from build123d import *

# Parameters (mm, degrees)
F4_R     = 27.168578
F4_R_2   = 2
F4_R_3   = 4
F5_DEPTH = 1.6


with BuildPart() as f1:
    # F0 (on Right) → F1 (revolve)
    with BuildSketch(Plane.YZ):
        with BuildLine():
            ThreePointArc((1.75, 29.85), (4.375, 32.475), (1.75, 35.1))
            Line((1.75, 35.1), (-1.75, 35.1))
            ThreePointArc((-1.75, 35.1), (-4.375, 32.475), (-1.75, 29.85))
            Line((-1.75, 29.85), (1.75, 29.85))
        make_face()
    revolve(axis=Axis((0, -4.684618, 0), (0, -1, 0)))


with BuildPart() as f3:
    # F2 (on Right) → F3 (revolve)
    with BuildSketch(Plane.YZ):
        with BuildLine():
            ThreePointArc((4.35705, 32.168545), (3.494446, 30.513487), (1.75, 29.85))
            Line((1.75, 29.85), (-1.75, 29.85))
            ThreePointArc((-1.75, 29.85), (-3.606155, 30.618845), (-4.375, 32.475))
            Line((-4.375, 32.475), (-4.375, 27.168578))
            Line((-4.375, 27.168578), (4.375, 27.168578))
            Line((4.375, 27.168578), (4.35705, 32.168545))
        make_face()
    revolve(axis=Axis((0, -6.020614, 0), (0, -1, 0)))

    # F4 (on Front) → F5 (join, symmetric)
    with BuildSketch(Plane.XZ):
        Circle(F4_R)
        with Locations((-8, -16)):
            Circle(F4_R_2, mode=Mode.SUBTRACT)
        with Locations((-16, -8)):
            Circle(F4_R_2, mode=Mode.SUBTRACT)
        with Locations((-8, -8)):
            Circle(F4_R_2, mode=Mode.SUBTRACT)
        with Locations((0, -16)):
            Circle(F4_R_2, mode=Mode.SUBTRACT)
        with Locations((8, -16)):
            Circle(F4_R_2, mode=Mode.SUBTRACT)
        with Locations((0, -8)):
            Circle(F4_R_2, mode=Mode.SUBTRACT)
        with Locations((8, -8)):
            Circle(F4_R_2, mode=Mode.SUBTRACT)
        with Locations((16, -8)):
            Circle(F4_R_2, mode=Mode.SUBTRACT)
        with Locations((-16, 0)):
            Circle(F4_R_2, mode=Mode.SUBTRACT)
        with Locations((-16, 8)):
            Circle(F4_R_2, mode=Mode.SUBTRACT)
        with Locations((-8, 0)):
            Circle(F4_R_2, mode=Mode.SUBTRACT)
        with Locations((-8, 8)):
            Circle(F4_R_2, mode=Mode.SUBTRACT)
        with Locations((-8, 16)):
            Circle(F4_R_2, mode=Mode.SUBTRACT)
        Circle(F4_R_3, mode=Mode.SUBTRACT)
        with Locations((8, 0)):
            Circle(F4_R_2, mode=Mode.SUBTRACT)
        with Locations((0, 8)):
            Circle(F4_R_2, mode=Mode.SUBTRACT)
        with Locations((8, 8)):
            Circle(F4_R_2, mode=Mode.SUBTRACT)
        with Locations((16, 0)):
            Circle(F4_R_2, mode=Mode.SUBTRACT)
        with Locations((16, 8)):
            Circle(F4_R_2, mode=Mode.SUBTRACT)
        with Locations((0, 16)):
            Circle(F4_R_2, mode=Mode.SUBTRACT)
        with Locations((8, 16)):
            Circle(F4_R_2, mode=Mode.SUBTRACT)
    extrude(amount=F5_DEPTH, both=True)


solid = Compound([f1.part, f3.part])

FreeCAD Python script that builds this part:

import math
import FreeCAD as App
import Part
import Sketcher

doc = App.newDocument("Part")
body = doc.addObject("PartDesign::Body", "Body")

sketch1 = doc.addObject("Sketcher::SketchObject", "Sketch")
body.addObject(sketch1)
sketch1.AttachmentSupport = (doc.YZ_Plane, [""])
sketch1.MapMode = "FlatFace"
sketch1.addGeometry(Part.ArcOfCircle(Part.Circle(App.Vector(1.8, 32.5, 0), App.Vector(0, 0, 1), 2.6), math.radians(-90), math.radians(90)), False)
sketch1.addGeometry(Part.LineSegment(App.Vector(1.8, 35.1, 0), App.Vector(-1.8, 35.1, 0)), False)
sketch1.addGeometry(Part.ArcOfCircle(Part.Circle(App.Vector(-1.8, 32.5, 0), App.Vector(0, 0, 1), 2.6), math.radians(90), math.radians(270)), False)
sketch1.addGeometry(Part.LineSegment(App.Vector(-1.8, 29.9, 0), App.Vector(1.8, 29.9, 0)), False)
sketch1.addConstraint(Sketcher.Constraint("Tangent", 0, 2, 1, 1))
sketch1.addConstraint(Sketcher.Constraint("Tangent", 1, 2, 2, 1))
sketch1.addConstraint(Sketcher.Constraint("Tangent", 2, 2, 3, 1))
sketch1.addConstraint(Sketcher.Constraint("Tangent", 3, 2, 0, 1))
sketch1.addConstraint(Sketcher.Constraint("Horizontal", 1))
sketch1.addConstraint(Sketcher.Constraint("Horizontal", 3))
sketch1.addConstraint(Sketcher.Constraint("DistanceX", 1, 2, 1, 1, 3.5))
sketch1.addConstraint(Sketcher.Constraint("Radius", 0, 2.625))
sketch1.addConstraint(Sketcher.Constraint("DistanceY", -1, 1, 0, 2, 35.1))
sketch1.addConstraint(Sketcher.Constraint("DistanceX", -1, 1, 0, 3, 1.75))
revolution = doc.addObject("PartDesign::Revolution", "Revolution")
body.addObject(revolution)
revolution.Profile = sketch1
revolution.ReferenceAxis = (sketch1, ["H_Axis"])
revolution.Angle = 360
body2 = doc.addObject("PartDesign::Body", "Body001")

sketch2 = doc.addObject("Sketcher::SketchObject", "Sketch001")
body2.addObject(sketch2)
sketch2.AttachmentSupport = (doc.getObject("YZ_Plane001"), [""])
sketch2.MapMode = "FlatFace"
sketch2.addGeometry(Part.ArcOfCircle(Part.Circle(App.Vector(1.8, 32.5, 0), App.Vector(0, 0, 1), 2.6), math.radians(-90), math.radians(-7)), False)
sketch2.addGeometry(Part.LineSegment(App.Vector(1.8, 29.9, 0), App.Vector(-1.8, 29.9, 0)), False)
sketch2.addGeometry(Part.ArcOfCircle(Part.Circle(App.Vector(-1.7, 32.5, 0), App.Vector(0, 0, 1), 2.6), math.radians(-180), math.radians(-90)), False)
sketch2.addGeometry(Part.LineSegment(App.Vector(-4.4, 32.5, 0), App.Vector(-4.4, 27.2, 0)), False)
sketch2.addGeometry(Part.LineSegment(App.Vector(-4.4, 27.2, 0), App.Vector(4.4, 27.2, 0)), False)
sketch2.addGeometry(Part.LineSegment(App.Vector(4.4, 27.2, 0), App.Vector(4.4, 32.2, 0)), False)
sketch2.addConstraint(Sketcher.Constraint("Tangent", 0, 1, 1, 1))
sketch2.addConstraint(Sketcher.Constraint("Tangent", 1, 2, 2, 2))
sketch2.addConstraint(Sketcher.Constraint("Tangent", 2, 1, 3, 1))
sketch2.addConstraint(Sketcher.Constraint("Coincident", 3, 2, 4, 1))
sketch2.addConstraint(Sketcher.Constraint("Coincident", 4, 2, 5, 1))
sketch2.addConstraint(Sketcher.Constraint("Coincident", 5, 2, 0, 2))
sketch2.addConstraint(Sketcher.Constraint("Horizontal", 1))
sketch2.addConstraint(Sketcher.Constraint("Vertical", 3))
sketch2.addConstraint(Sketcher.Constraint("Horizontal", 4))
sketch2.addConstraint(Sketcher.Constraint("Equal", 0, 2))
sketch2.addConstraint(Sketcher.Constraint("Distance", 5, 4.999999))
sketch2.addConstraint(Sketcher.Constraint("DistanceX", 1, 2, 1, 1, 3.5))
sketch2.addConstraint(Sketcher.Constraint("Radius", 0, 2.625))
sketch2.addConstraint(Sketcher.Constraint("DistanceX", 4, 1, 4, 2, 8.75))
sketch2.addConstraint(Sketcher.Constraint("DistanceX", -1, 1, 0, 3, 1.75))
sketch2.addConstraint(Sketcher.Constraint("DistanceY", -1, 1, 0, 1, 29.85))
sketch2.addConstraint(Sketcher.Constraint("DistanceY", 3, 2, 3, 1, 5.306422))
revolution2 = doc.addObject("PartDesign::Revolution", "Revolution001")
body2.addObject(revolution2)
revolution2.Profile = sketch2
revolution2.ReferenceAxis = (sketch2, ["H_Axis"])
revolution2.Angle = 360

sketch3 = doc.addObject("Sketcher::SketchObject", "Sketch002")
body2.addObject(sketch3)
sketch3.AttachmentSupport = (doc.getObject("XZ_Plane001"), [""])
sketch3.MapMode = "FlatFace"
sketch3.addGeometry(Part.Circle(App.Vector(0, 0, 0), App.Vector(0, 0, 1), 27.2), False)
sketch3.addGeometry(Part.Circle(App.Vector(-8, -16, 0), App.Vector(0, 0, 1), 2), False)
sketch3.addGeometry(Part.Circle(App.Vector(-16, -8, 0), App.Vector(0, 0, 1), 2), False)
sketch3.addGeometry(Part.Circle(App.Vector(-8, -8, 0), App.Vector(0, 0, 1), 2), False)
sketch3.addGeometry(Part.Circle(App.Vector(0, -16, 0), App.Vector(0, 0, 1), 2), False)
sketch3.addGeometry(Part.Circle(App.Vector(8, -16, 0), App.Vector(0, 0, 1), 2), False)
sketch3.addGeometry(Part.Circle(App.Vector(0, -8, 0), App.Vector(0, 0, 1), 2), False)
sketch3.addGeometry(Part.Circle(App.Vector(8, -8, 0), App.Vector(0, 0, 1), 2), False)
sketch3.addGeometry(Part.Circle(App.Vector(16, -8, 0), App.Vector(0, 0, 1), 2), False)
sketch3.addGeometry(Part.Circle(App.Vector(-16, 0, 0), App.Vector(0, 0, 1), 2), False)
sketch3.addGeometry(Part.Circle(App.Vector(-16, 8, 0), App.Vector(0, 0, 1), 2), False)
sketch3.addGeometry(Part.Circle(App.Vector(-8, 0, 0), App.Vector(0, 0, 1), 2), False)
sketch3.addGeometry(Part.Circle(App.Vector(-8, 8, 0), App.Vector(0, 0, 1), 2), False)
sketch3.addGeometry(Part.Circle(App.Vector(-8, 16, 0), App.Vector(0, 0, 1), 2), False)
sketch3.addGeometry(Part.Circle(App.Vector(0, 0, 0), App.Vector(0, 0, 1), 4), False)
sketch3.addGeometry(Part.Circle(App.Vector(8, 0, 0), App.Vector(0, 0, 1), 2), False)
sketch3.addGeometry(Part.Circle(App.Vector(0, 8, 0), App.Vector(0, 0, 1), 2), False)
sketch3.addGeometry(Part.Circle(App.Vector(8, 8, 0), App.Vector(0, 0, 1), 2), False)
sketch3.addGeometry(Part.Circle(App.Vector(16, 0, 0), App.Vector(0, 0, 1), 2), False)
sketch3.addGeometry(Part.Circle(App.Vector(16, 8, 0), App.Vector(0, 0, 1), 2), False)
sketch3.addGeometry(Part.Circle(App.Vector(0, 16, 0), App.Vector(0, 0, 1), 2), False)
sketch3.addGeometry(Part.Circle(App.Vector(8, 16, 0), App.Vector(0, 0, 1), 2), False)
sketch3.addConstraint(Sketcher.Constraint("Coincident", 0, 3, -1, 1))
sketch3.addConstraint(Sketcher.Constraint("Coincident", 14, 3, -1, 1))
sketch3.addConstraint(Sketcher.Constraint("Equal", 1, 2))
sketch3.addConstraint(Sketcher.Constraint("Equal", 2, 3))
sketch3.addConstraint(Sketcher.Constraint("Equal", 3, 4))
sketch3.addConstraint(Sketcher.Constraint("Equal", 4, 5))
sketch3.addConstraint(Sketcher.Constraint("Equal", 5, 6))
sketch3.addConstraint(Sketcher.Constraint("Equal", 6, 7))
sketch3.addConstraint(Sketcher.Constraint("Equal", 7, 8))
sketch3.addConstraint(Sketcher.Constraint("Equal", 8, 9))
sketch3.addConstraint(Sketcher.Constraint("Equal", 9, 10))
sketch3.addConstraint(Sketcher.Constraint("Equal", 10, 11))
sketch3.addConstraint(Sketcher.Constraint("Equal", 11, 12))
sketch3.addConstraint(Sketcher.Constraint("Equal", 12, 13))
sketch3.addConstraint(Sketcher.Constraint("Equal", 13, 15))
sketch3.addConstraint(Sketcher.Constraint("Equal", 15, 16))
sketch3.addConstraint(Sketcher.Constraint("Equal", 16, 17))
sketch3.addConstraint(Sketcher.Constraint("Equal", 17, 18))
sketch3.addConstraint(Sketcher.Constraint("Equal", 18, 19))
sketch3.addConstraint(Sketcher.Constraint("Equal", 19, 20))
sketch3.addConstraint(Sketcher.Constraint("Equal", 20, 21))
sketch3.addConstraint(Sketcher.Constraint("Symmetric", 8, 3, 10, 3, -1, 1))
sketch3.addConstraint(Sketcher.Constraint("Symmetric", 7, 3, 12, 3, -1, 1))
sketch3.addConstraint(Sketcher.Constraint("Symmetric", 5, 3, 13, 3, -1, 1))
sketch3.addConstraint(Sketcher.Constraint("Symmetric", 11, 3, 15, 3, -1, 1))
sketch3.addConstraint(Sketcher.Constraint("Symmetric", 6, 3, 16, 3, -1, 1))
sketch3.addConstraint(Sketcher.Constraint("Symmetric", 3, 3, 17, 3, -1, 1))
sketch3.addConstraint(Sketcher.Constraint("Symmetric", 9, 3, 18, 3, -1, 1))
sketch3.addConstraint(Sketcher.Constraint("Symmetric", 2, 3, 19, 3, -1, 1))
sketch3.addConstraint(Sketcher.Constraint("Symmetric", 4, 3, 20, 3, -1, 1))
sketch3.addConstraint(Sketcher.Constraint("Symmetric", 1, 3, 21, 3, -1, 1))
sketch3.addConstraint(Sketcher.Constraint("Symmetric", 1, 3, 5, 3, -2))
sketch3.addConstraint(Sketcher.Constraint("Symmetric", 3, 3, 7, 3, -2))
sketch3.addConstraint(Sketcher.Constraint("Symmetric", 2, 3, 8, 3, -2))
sketch3.addConstraint(Sketcher.Constraint("PointOnObject", 4, 3, -2))
sketch3.addConstraint(Sketcher.Constraint("PointOnObject", 6, 3, -2))
sketch3.addConstraint(Sketcher.Constraint("PointOnObject", 9, 3, -1))
sketch3.addConstraint(Sketcher.Constraint("PointOnObject", 11, 3, -1))
sketch3.addConstraint(Sketcher.Constraint("Horizontal", 2, 3, 3, 3))
sketch3.addConstraint(Sketcher.Constraint("Horizontal", 1, 3, 4, 3))
sketch3.addConstraint(Sketcher.Constraint("Horizontal", 3, 3, 6, 3))
sketch3.addConstraint(Sketcher.Constraint("Vertical", 1, 3, 3, 3))
sketch3.addConstraint(Sketcher.Constraint("Vertical", 2, 3, 9, 3))
sketch3.addConstraint(Sketcher.Constraint("Vertical", 3, 3, 11, 3))
sketch3.addConstraint(Sketcher.Constraint("Diameter", 1, 4.0))
sketch3.addConstraint(Sketcher.Constraint("Diameter", 14, 8.0))
sketch3.addConstraint(Sketcher.Constraint("DistanceX", 1, 3, -1, 1, 8.0))
sketch3.addConstraint(Sketcher.Constraint("DistanceY", 1, 3, -1, 1, 16.0))
sketch3.addConstraint(Sketcher.Constraint("DistanceX", 2, 3, -1, 1, 16.0))
sketch3.addConstraint(Sketcher.Constraint("DistanceY", 2, 3, -1, 1, 8.0))
sketch3.addConstraint(Sketcher.Constraint("Diameter", 0, 54.337156))
pad1 = doc.addObject("PartDesign::Pad", "Pad")
body2.addObject(pad1)
pad1.Profile = sketch3
pad1.Length = 3.2
pad1.Midplane = True

doc.recompute()
